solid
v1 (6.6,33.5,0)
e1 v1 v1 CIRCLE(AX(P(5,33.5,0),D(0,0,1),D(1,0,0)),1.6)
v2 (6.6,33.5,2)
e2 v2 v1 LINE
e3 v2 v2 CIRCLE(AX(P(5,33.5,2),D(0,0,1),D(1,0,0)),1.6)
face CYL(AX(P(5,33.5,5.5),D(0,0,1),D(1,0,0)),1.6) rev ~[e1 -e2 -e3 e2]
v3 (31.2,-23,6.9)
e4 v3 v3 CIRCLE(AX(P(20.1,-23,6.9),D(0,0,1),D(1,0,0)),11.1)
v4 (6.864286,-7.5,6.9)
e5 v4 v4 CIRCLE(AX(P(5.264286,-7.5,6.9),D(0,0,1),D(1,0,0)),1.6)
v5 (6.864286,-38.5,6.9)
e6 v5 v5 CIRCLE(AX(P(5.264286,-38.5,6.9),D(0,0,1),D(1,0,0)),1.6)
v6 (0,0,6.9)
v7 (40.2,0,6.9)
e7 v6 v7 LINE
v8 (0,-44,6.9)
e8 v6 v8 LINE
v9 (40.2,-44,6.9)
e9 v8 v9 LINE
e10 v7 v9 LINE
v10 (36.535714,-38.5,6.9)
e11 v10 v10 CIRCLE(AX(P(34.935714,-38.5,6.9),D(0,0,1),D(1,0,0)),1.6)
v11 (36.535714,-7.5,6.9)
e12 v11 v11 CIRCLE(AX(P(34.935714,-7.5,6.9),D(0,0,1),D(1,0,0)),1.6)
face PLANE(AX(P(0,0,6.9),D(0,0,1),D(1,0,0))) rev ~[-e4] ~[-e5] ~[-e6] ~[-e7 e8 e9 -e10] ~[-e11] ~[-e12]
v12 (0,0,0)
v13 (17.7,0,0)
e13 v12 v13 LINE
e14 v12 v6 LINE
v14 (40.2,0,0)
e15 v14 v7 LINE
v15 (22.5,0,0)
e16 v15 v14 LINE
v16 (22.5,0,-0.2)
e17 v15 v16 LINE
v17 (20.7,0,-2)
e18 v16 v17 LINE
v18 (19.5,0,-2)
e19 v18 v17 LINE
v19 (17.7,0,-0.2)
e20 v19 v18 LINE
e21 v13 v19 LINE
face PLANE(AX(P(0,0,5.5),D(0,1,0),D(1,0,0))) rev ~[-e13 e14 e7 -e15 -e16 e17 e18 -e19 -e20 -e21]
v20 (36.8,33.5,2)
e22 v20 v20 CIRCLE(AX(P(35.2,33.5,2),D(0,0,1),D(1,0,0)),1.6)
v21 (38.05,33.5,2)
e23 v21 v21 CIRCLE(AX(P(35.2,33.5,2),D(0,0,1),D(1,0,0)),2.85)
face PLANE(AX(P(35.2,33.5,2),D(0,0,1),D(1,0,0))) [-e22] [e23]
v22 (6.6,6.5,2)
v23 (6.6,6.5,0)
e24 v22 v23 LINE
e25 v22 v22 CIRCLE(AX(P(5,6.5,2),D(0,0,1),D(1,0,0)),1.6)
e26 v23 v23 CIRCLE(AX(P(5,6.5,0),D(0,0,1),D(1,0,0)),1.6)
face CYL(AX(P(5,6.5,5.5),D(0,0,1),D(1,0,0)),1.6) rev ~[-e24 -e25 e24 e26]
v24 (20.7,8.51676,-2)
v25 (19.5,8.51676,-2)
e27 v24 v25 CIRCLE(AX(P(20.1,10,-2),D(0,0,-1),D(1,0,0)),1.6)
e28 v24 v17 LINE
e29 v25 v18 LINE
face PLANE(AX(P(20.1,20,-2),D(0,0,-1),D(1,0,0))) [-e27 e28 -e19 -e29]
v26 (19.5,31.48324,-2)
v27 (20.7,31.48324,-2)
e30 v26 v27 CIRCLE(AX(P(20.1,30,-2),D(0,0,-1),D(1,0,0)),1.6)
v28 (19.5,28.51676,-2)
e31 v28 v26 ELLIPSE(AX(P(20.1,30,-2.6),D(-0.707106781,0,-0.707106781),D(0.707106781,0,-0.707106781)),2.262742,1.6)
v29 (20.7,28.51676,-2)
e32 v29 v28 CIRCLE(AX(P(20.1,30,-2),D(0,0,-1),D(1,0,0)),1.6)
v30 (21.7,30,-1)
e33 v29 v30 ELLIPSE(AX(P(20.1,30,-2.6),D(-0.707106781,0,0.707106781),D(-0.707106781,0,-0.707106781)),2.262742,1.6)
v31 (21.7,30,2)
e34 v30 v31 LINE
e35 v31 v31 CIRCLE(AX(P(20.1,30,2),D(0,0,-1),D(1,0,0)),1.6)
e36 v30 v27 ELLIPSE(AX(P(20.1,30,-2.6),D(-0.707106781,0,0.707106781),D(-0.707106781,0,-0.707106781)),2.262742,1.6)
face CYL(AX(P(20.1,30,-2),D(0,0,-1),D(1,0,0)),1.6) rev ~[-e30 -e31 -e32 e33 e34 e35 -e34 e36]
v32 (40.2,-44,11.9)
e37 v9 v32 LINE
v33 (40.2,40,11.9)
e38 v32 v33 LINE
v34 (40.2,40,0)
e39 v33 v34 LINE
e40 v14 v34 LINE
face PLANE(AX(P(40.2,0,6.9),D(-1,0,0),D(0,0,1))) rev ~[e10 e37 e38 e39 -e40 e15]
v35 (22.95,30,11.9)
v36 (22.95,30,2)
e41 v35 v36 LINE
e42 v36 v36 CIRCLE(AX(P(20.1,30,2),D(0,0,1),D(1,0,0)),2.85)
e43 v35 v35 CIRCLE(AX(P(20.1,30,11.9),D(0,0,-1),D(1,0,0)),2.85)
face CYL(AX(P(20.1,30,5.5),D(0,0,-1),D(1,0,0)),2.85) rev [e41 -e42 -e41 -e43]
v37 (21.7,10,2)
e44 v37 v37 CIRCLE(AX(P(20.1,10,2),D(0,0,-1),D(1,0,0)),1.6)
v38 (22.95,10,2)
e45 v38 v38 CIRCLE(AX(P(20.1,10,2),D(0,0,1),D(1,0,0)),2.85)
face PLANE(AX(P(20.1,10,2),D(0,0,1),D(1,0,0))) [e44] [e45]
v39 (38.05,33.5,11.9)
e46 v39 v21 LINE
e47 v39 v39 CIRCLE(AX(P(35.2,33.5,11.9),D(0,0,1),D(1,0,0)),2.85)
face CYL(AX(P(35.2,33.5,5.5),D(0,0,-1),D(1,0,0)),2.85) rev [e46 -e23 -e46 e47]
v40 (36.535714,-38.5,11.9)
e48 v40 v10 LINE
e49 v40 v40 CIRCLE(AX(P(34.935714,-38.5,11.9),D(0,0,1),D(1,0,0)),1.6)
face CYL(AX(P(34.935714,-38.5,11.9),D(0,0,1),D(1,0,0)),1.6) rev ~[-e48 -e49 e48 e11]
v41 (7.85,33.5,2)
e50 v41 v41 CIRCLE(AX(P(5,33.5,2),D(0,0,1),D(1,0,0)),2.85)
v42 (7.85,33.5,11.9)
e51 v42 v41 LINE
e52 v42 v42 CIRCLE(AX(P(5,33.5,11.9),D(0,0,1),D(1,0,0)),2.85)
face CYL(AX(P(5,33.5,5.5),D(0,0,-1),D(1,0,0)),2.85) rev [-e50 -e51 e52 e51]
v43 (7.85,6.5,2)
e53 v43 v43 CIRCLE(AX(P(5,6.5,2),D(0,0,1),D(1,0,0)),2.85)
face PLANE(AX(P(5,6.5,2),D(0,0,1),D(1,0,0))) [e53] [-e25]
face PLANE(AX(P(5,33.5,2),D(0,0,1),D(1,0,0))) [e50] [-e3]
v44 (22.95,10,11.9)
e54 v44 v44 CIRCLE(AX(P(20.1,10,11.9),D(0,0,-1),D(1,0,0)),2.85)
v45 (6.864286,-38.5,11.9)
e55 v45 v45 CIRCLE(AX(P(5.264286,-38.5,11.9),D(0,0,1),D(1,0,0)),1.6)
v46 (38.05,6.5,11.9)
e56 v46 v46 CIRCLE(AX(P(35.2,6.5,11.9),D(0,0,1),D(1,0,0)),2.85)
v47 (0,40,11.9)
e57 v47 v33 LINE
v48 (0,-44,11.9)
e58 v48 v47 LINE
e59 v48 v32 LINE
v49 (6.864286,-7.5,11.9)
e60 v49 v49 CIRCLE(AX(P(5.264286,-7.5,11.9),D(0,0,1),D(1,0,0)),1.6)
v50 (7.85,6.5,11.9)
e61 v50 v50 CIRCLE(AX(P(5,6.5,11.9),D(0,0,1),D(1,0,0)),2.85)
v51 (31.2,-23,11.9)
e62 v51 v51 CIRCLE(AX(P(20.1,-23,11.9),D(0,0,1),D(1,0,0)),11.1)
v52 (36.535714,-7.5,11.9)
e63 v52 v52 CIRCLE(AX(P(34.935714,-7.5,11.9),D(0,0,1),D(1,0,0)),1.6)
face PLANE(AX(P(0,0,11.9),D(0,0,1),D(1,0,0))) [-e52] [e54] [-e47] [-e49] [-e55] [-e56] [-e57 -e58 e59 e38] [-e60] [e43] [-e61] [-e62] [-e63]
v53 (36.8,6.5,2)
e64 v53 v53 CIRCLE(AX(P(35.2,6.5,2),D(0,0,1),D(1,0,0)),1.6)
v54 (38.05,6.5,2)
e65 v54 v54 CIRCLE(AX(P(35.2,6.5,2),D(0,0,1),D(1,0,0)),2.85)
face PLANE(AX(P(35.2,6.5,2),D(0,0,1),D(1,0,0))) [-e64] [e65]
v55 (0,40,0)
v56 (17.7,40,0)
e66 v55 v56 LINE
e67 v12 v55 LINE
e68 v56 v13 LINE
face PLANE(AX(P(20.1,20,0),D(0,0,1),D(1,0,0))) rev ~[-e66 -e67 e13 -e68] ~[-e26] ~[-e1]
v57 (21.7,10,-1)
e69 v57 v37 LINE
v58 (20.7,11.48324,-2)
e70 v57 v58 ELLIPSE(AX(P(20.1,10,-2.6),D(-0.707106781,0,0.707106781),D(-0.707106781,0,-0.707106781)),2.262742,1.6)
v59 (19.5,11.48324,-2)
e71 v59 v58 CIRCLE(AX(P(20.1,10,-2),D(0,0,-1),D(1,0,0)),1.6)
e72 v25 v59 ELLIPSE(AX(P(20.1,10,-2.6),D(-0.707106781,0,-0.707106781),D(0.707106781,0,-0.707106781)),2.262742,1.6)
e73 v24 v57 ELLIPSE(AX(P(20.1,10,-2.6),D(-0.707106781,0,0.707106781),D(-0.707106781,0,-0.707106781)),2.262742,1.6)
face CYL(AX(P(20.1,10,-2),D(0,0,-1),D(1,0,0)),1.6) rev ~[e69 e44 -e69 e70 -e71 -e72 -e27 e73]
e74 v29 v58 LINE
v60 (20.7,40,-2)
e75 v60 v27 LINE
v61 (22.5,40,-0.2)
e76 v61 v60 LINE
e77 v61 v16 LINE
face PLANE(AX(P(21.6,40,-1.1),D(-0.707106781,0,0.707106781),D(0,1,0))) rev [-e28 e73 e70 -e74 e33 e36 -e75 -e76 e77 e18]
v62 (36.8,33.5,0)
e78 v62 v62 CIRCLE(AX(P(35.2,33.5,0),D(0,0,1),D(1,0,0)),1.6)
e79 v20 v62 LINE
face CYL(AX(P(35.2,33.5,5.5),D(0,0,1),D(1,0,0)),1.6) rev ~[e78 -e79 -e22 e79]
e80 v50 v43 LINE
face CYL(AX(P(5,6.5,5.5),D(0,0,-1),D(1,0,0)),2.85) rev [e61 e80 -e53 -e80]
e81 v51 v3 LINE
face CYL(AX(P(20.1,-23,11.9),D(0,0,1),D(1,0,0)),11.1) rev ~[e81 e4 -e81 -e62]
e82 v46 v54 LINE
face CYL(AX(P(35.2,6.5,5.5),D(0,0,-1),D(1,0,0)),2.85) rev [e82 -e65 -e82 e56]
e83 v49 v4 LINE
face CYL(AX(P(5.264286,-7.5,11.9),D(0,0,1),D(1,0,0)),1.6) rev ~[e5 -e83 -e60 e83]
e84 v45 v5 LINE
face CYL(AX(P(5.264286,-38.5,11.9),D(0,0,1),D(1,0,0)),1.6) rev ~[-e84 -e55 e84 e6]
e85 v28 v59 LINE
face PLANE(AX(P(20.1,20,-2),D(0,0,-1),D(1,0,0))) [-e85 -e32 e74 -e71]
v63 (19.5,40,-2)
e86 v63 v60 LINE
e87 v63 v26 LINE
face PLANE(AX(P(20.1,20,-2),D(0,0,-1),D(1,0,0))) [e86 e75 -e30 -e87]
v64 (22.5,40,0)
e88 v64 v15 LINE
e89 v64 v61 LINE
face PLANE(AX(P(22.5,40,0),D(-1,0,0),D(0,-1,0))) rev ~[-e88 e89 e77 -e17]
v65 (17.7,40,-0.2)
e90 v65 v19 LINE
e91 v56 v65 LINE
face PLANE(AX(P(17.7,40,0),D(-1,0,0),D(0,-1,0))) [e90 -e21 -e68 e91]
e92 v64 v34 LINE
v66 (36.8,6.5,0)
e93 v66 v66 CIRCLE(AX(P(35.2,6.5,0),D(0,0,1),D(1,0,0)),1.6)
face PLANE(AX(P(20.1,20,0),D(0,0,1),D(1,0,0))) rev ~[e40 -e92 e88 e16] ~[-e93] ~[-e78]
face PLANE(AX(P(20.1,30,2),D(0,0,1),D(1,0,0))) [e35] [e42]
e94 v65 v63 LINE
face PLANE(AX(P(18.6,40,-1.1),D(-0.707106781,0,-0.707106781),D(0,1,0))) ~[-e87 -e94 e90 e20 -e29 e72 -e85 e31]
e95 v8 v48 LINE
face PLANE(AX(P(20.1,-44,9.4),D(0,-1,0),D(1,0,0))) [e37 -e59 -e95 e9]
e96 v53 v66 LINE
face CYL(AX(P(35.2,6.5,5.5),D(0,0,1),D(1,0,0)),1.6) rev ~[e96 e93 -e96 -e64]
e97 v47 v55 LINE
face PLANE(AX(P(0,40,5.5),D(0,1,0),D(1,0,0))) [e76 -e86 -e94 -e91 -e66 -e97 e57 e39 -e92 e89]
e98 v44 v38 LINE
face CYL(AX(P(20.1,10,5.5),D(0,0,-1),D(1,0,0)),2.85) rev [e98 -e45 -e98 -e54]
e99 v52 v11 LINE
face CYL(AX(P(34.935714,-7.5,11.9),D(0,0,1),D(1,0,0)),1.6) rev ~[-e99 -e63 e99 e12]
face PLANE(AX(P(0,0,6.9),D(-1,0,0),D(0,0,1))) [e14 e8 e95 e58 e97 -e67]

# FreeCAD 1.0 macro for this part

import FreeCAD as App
import Part
import Sketcher

V = App.Vector


def edges_at(feature, points):
    """Names of the edges that pass closest to the given points."""
    edges = feature.Shape.Edges
    near = lambda p: min(range(len(edges)), key=lambda i: edges[i].distToShape(Part.Vertex(*p))[0])
    return sorted({f"Edge{near(p) + 1}" for p in points})


def add_polygon(sketch, points):
    """Adds a closed chain of lines whose ends are joined by coincident constraints."""
    first, n = sketch.GeometryCount, len(points)
    for a, b in zip(points, points[1:] + points[:1]):
        sketch.addGeometry(Part.LineSegment(App.Vector(*a, 0), App.Vector(*b, 0)), False)
    for i in range(n):
        sketch.addConstraint(Sketcher.Constraint("Coincident", first + i, 2, first + (i + 1) % n, 1))

doc = App.newDocument("Part")
params = doc.addObject("Spreadsheet::Sheet", "Params")
for row, (alias, value) in enumerate([
    ("sketch1_height", "40 mm"),
    ("sketch1_width", "40.2 mm"),
    ("pad1_length", "5.5 mm"),
    ("sketch2_diameter", "5.7 mm"),
    ("pocket1_length", "3.5 mm"),
    ("sketch3_diameter", "3.2 mm"),
    ("pocket2_length", "25 mm"),
    ("sketch4_height", "40 mm"),
    ("sketch4_width", "4.8 mm"),
    ("pad2_length", "2 mm"),
    ("chamfer_size", "1.8 mm"),
    ("sketch5_diameter", "3.2 mm"),
    ("pocket3_length", "25 mm"),
    ("sketch6_diameter", "5.7 mm"),
    ("pocket4_length", "3.5 mm"),
    ("sketch7_diameter", "5.7 mm"),
    ("sketch7_height", "40 mm"),
    ("sketch7_width", "40.2 mm"),
    ("pad3_length", "6.4 mm"),
    ("sketch8_diameter", "5.7 mm"),
    ("pocket5_length", "25 mm"),
    ("sketch9_height", "5 mm"),
    ("sketch9_width", "40.2 mm"),
    ("pad4_length", "44 mm"),
    ("sketch10_diameter", "22.2 mm"),
    ("sketch10_diameter2", "3.2 mm"),
    ("pocket6_length", "25 mm"),
], start=1):
    params.set(f"A{row}", alias)
    params.set(f"B{row}", "=" + value)
    params.setAlias(f"B{row}", alias)

body = doc.addObject("PartDesign::Body", "Body")

sketch1 = body.newObject("Sketcher::SketchObject", "Sketch")
sketch1.AttachmentSupport = (doc.getObject("XY_Plane"), [""])
sketch1.MapMode = "FlatFace"
add_polygon(sketch1, [(0, 40), (0, 0), (40, 0), (40, 40)])
sketch1.addConstraint([
    Sketcher.Constraint("Vertical", 0),
    Sketcher.Constraint("Horizontal", 1),
    Sketcher.Constraint("Vertical", 2),
    Sketcher.Constraint("Horizontal", 3),
    Sketcher.Constraint("Coincident", 0, 2, -1, 1),
    Sketcher.Constraint("DistanceY", 0, 2, 0, 1, 40.0),
    Sketcher.Constraint("DistanceX", 1, 1, 1, 2, 40.2),
])
sketch1.setExpression("Constraints[9]", "Params.sketch1_height")
sketch1.setExpression("Constraints[10]", "Params.sketch1_width")
pad1 = body.newObject("PartDesign::Pad", "Pad")
pad1.Profile = sketch1
pad1.setExpression("Length", "Params.pad1_length")

sketch2 = body.newObject("Sketcher::SketchObject", "Sketch001")
sketch2.AttachmentSupport = (doc.getObject("XY_Plane"), [""])
sketch2.MapMode = "FlatFace"
sketch2.AttachmentOffset = App.Placement(V(0, 0, 5.5), App.Rotation())
sketch2.addGeometry([
    Part.Circle(V(35.2, 6.5, 0), V(0, 0, 1), 2.9),
    Part.Circle(V(35.2, 33.5, 0), V(0, 0, 1), 2.9),
    Part.Circle(V(5, 33.5, 0), V(0, 0, 1), 2.9),
    Part.Circle(V(5, 6.5, 0), V(0, 0, 1), 2.9),
], False)
sketch2.addConstraint([
    Sketcher.Constraint("Equal", 0, 1),
    Sketcher.Constraint("Equal", 1, 2),
    Sketcher.Constraint("Equal", 2, 3),
    Sketcher.Constraint("Horizontal", 1, 3, 2, 3),
    Sketcher.Constraint("Horizontal", 0, 3, 3, 3),
    Sketcher.Constraint("Vertical", 0, 3, 1, 3),
    Sketcher.Constraint("Vertical", 2, 3, 3, 3),
    Sketcher.Constraint("Diameter", 0, 5.7),
    Sketcher.Constraint("DistanceX", -1, 1, 2, 3, 5.0),
    Sketcher.Constraint("DistanceY", 0, 3, 1, 3, 27.0),
    Sketcher.Constraint("DistanceX", -1, 1, 0, 3, 35.2),
    Sketcher.Constraint("DistanceY", -1, 1, 0, 3, 6.5),
])
sketch2.setExpression("Constraints[7]", "Params.sketch2_diameter")
pocket1 = body.newObject("PartDesign::Pocket", "Pocket")
pocket1.Profile = sketch2
pocket1.setExpression("Length", "Params.pocket1_length")

sketch3 = body.newObject("Sketcher::SketchObject", "Sketch002")
sketch3.AttachmentSupport = (doc.getObject("XY_Plane"), [""])
sketch3.MapMode = "FlatFace"
sketch3.AttachmentOffset = App.Placement(V(0, 0, 5.5), App.Rotation())
sketch3.addGeometry([
    Part.Circle(V(35.2, 33.5, 0), V(0, 0, 1), 1.6),
    Part.Circle(V(35.2, 6.5, 0), V(0, 0, 1), 1.6),
    Part.Circle(V(5, 33.5, 0), V(0, 0, 1), 1.6),
    Part.Circle(V(5, 6.5, 0), V(0, 0, 1), 1.6),
], False)
sketch3.addConstraint([
    Sketcher.Constraint("Equal", 0, 1),
    Sketcher.Constraint("Equal", 1, 2),
    Sketcher.Constraint("Equal", 2, 3),
    Sketcher.Constraint("Horizontal", 0, 3, 2, 3),
    Sketcher.Constraint("Horizontal", 1, 3, 3, 3),
    Sketcher.Constraint("Vertical", 0, 3, 1, 3),
    Sketcher.Constraint("Vertical", 2, 3, 3, 3),
    Sketcher.Constraint("Diameter", 0, 3.2),
    Sketcher.Constraint("DistanceX", -1, 1, 2, 3, 5.0),
    Sketcher.Constraint("DistanceY", 1, 3, 0, 3, 27.0),
    Sketcher.Constraint("DistanceX", -1, 1, 0, 3, 35.2),
    Sketcher.Constraint("DistanceY", -1, 1, 0, 3, 33.5),
])
sketch3.setExpression("Constraints[7]", "Params.sketch3_diameter")
pocket2 = body.newObject("PartDesign::Pocket", "Pocket001")
pocket2.Profile = sketch3
pocket2.setExpression("Length", "Params.pocket2_length")

sketch4 = body.newObject("Sketcher::SketchObject", "Sketch003")
sketch4.AttachmentSupport = (doc.getObject("XY_Plane"), [""])
sketch4.MapMode = "FlatFace"
add_polygon(sketch4, [(17.7, 0), (17.7, 40), (22.5, 40), (22.5, 0)])
sketch4.addConstraint([
    Sketcher.Constraint("Vertical", 0),
    Sketcher.Constraint("Horizontal", 1),
    Sketcher.Constraint("Vertical", 2),
    Sketcher.Constraint("Horizontal", 3),
    Sketcher.Constraint("PointOnObject", 2, 2, -1),
    Sketcher.Constraint("DistanceY", 0, 1, 0, 2, 40.0),
    Sketcher.Constraint("DistanceX", 1, 1, 1, 2, 4.8),
    Sketcher.Constraint("DistanceX", -1, 1, 0, 2, 17.7),
])
sketch4.setExpression("Constraints[9]", "Params.sketch4_height")
sketch4.setExpression("Constraints[10]", "Params.sketch4_width")
pad2 = body.newObject("PartDesign::Pad", "Pad001")
pad2.Profile = sketch4
pad2.setExpression("Length", "Params.pad2_length")
pad2.Reversed = True
doc.recompute()

chamfer = body.newObject("PartDesign::Chamfer", "Chamfer")
chamfer.Base = (pad2, edges_at(pad2, [(17.7, 20, -2), (22.5, 20, -2)]))
chamfer.setExpression("Size", "Params.chamfer_size")

sketch5 = body.newObject("Sketcher::SketchObject", "Sketch004")
sketch5.AttachmentSupport = (doc.getObject("XY_Plane"), [""])
sketch5.MapMode = "FlatFace"
sketch5.AttachmentOffset = App.Placement(V(0, 0, -2), App.Rotation())
sketch5.addGeometry([
    Part.Circle(V(20.1, 30, 0), V(0, 0, 1), 1.6),
    Part.Circle(V(20.1, 10, 0), V(0, 0, 1), 1.6),
], False)
sketch5.addConstraint([
    Sketcher.Constraint("Equal", 0, 1),
    Sketcher.Constraint("Vertical", 0, 3, 1, 3),
    Sketcher.Constraint("Diameter", 0, 3.2),
    Sketcher.Constraint("DistanceY", -1, 1, 0, 3, 30.0),
    Sketcher.Constraint("DistanceY", -1, 1, 1, 3, 10.0),
    Sketcher.Constraint("DistanceX", -1, 1, 0, 3, 20.1),
])
sketch5.setExpression("Constraints[2]", "Params.sketch5_diameter")
pocket3 = body.newObject("PartDesign::Pocket", "Pocket002")
pocket3.Profile = sketch5
pocket3.setExpression("Length", "Params.pocket3_length")
pocket3.Reversed = True

sketch6 = body.newObject("Sketcher::SketchObject", "Sketch005")
sketch6.AttachmentSupport = (doc.getObject("XY_Plane"), [""])
sketch6.MapMode = "FlatFace"
sketch6.AttachmentOffset = App.Placement(V(0, 0, 5.5), App.Rotation())
sketch6.addGeometry([
    Part.Circle(V(20.1, 30, 0), V(0, 0, 1), 2.9),
    Part.Circle(V(20.1, 10, 0), V(0, 0, 1), 2.9),
], False)
sketch6.addConstraint([
    Sketcher.Constraint("Equal", 0, 1),
    Sketcher.Constraint("Vertical", 0, 3, 1, 3),
    Sketcher.Constraint("Diameter", 0, 5.7),
    Sketcher.Constraint("DistanceY", -1, 1, 0, 3, 30.0),
    Sketcher.Constraint("DistanceY", -1, 1, 1, 3, 10.0),
    Sketcher.Constraint("DistanceX", -1, 1, 0, 3, 20.1),
])
sketch6.setExpression("Constraints[2]", "Params.sketch6_diameter")
pocket4 = body.newObject("PartDesign::Pocket", "Pocket003")
pocket4.Profile = sketch6
pocket4.setExpression("Length", "Params.pocket4_length")

sketch7 = body.newObject("Sketcher::SketchObject", "Sketch006")
sketch7.AttachmentSupport = (doc.getObject("XY_Plane"), [""])
sketch7.MapMode = "FlatFace"
sketch7.AttachmentOffset = App.Placement(V(0, 0, 5.5), App.Rotation())
add_polygon(sketch7, [(0, 40), (0, 0), (40.2, 0), (40.2, 40)])
sketch7.addGeometry(Part.Circle(V(5, 6.5, 0), V(0, 0, 1), 2.9), False)
sketch7.addGeometry(Part.Circle(V(35.2, 6.5, 0), V(0, 0, 1), 2.9), False)
sketch7.addGeometry(Part.Circle(V(5, 33.5, 0), V(0, 0, 1), 2.9), False)
sketch7.addGeometry(Part.Circle(V(35.2, 33.5, 0), V(0, 0, 1), 2.9), False)
sketch7.addConstraint([
    Sketcher.Constraint("Vertical", 0),
    Sketcher.Constraint("Horizontal", 1),
    Sketcher.Constraint("Vertical", 2),
    Sketcher.Constraint("Horizontal", 3),
    Sketcher.Constraint("Coincident", 0, 2, -1, 1),
    Sketcher.Constraint("Equal", 4, 5),
    Sketcher.Constraint("Equal", 5, 6),
    Sketcher.Constraint("Equal", 6, 7),
    Sketcher.Constraint("Horizontal", 4, 3, 5, 3),
    Sketcher.Constraint("Horizontal", 6, 3, 7, 3),
    Sketcher.Constraint("Vertical", 4, 3, 6, 3),
    Sketcher.Constraint("Vertical", 5, 3, 7, 3),
    Sketcher.Constraint("Diameter", 4, 5.7),
    Sketcher.Constraint("DistanceY", 0, 2, 0, 1, 40.0),
    Sketcher.Constraint("DistanceX", 1, 1, 1, 2, 40.2),
    Sketcher.Constraint("DistanceX", -1, 1, 4, 3, 5.0),
    Sketcher.Constraint("DistanceY", 4, 3, 6, 3, 27.0),
    Sketcher.Constraint("DistanceX", 5, 3, 1, 2, 5.0),
    Sketcher.Constraint("DistanceY", -1, 1, 4, 3, 6.5),
])
sketch7.setExpression("Constraints[16]", "Params.sketch7_diameter")
sketch7.setExpression("Constraints[17]", "Params.sketch7_height")
sketch7.setExpression("Constraints[18]", "Params.sketch7_width")
pad3 = body.newObject("PartDesign::Pad", "Pad002")
pad3.Profile = sketch7
pad3.setExpression("Length", "Params.pad3_length")

sketch8 = body.newObject("Sketcher::SketchObject", "Sketch007")
sketch8.AttachmentSupport = (doc.getObject("XY_Plane"), [""])
sketch8.MapMode = "FlatFace"
sketch8.AttachmentOffset = App.Placement(V(0, 0, 5.5), App.Rotation())
sketch8.addGeometry([
    Part.Circle(V(20.1, 30, 0), V(0, 0, 1), 2.9),
    Part.Circle(V(20.1, 10, 0), V(0, 0, 1), 2.9),
], False)
sketch8.addConstraint([
    Sketcher.Constraint("Equal", 0, 1),
    Sketcher.Constraint("Vertical", 0, 3, 1, 3),
    Sketcher.Constraint("Diameter", 0, 5.7),
    Sketcher.Constraint("DistanceY", -1, 1, 0, 3, 30.0),
    Sketcher.Constraint("DistanceY", -1, 1, 1, 3, 10.0),
    Sketcher.Constraint("DistanceX", -1, 1, 0, 3, 20.1),
])
sketch8.setExpression("Constraints[2]", "Params.sketch8_diameter")
pocket5 = body.newObject("PartDesign::Pocket", "Pocket004")
pocket5.Profile = sketch8
pocket5.setExpression("Length", "Params.pocket5_length")
pocket5.Reversed = True

sketch9 = body.newObject("Sketcher::SketchObject", "Sketch008")
sketch9.AttachmentSupport = (doc.getObject("XZ_Plane"), [""])
sketch9.MapMode = "FlatFace"
add_polygon(sketch9, [(0, 12), (0, 7), (40, 7), (40, 12)])
sketch9.addConstraint([
    Sketcher.Constraint("Vertical", 0),
    Sketcher.Constraint("Horizontal", 1),
    Sketcher.Constraint("Vertical", 2),
    Sketcher.Constraint("Horizontal", 3),
    Sketcher.Constraint("PointOnObject", 0, 2, -2),
    Sketcher.Constraint("DistanceY", 0, 2, 0, 1, 5.0),
    Sketcher.Constraint("DistanceX", 1, 1, 1, 2, 40.2),
    Sketcher.Constraint("DistanceY", -1, 1, 0, 2, 6.9),
])
sketch9.setExpression("Constraints[9]", "Params.sketch9_height")
sketch9.setExpression("Constraints[10]", "Params.sketch9_width")
pad4 = body.newObject("PartDesign::Pad", "Pad003")
pad4.Profile = sketch9
pad4.setExpression("Length", "Params.pad4_length")

sketch10 = body.newObject("Sketcher::SketchObject", "Sketch009")
sketch10.AttachmentSupport = (doc.getObject("XY_Plane"), [""])
sketch10.MapMode = "FlatFace"
sketch10.AttachmentOffset = App.Placement(V(0, 0, 11.9), App.Rotation())
sketch10.addGeometry([
    Part.Circle(V(20.1, -23, 0), V(0, 0, 1), 11.1),
    Part.Circle(V(5.3, -38.5, 0), V(0, 0, 1), 1.6),
    Part.Circle(V(34.9, -38.5, 0), V(0, 0, 1), 1.6),
    Part.Circle(V(5.3, -7.5, 0), V(0, 0, 1), 1.6),
    Part.Circle(V(34.9, -7.5, 0), V(0, 0, 1), 1.6),
], False)
sketch10.addConstraint([
    Sketcher.Constraint("Equal", 1, 2),
    Sketcher.Constraint("Equal", 2, 3),
    Sketcher.Constraint("Equal", 3, 4),
    Sketcher.Constraint("Horizontal", 1, 3, 2, 3),
    Sketcher.Constraint("Horizontal", 3, 3, 4, 3),
    Sketcher.Constraint("Vertical", 1, 3, 3, 3),
    Sketcher.Constraint("Vertical", 2, 3, 4, 3),
    Sketcher.Constraint("Diameter", 0, 22.2),
    Sketcher.Constraint("Diameter", 1, 3.2),
    Sketcher.Constraint("DistanceY", 0, 3, -1, 1, 23.0),
    Sketcher.Constraint("DistanceY", 1, 3, 3, 3, 31.0),
    Sketcher.Constraint("DistanceX", -1, 1, 0, 3, 20.1),
    Sketcher.Constraint("DistanceY", 1, 3, -1, 1, 38.5),
    Sketcher.Constraint("DistanceX", -1, 1, 1, 3, 5.264286),
    Sketcher.Constraint("DistanceX", -1, 1, 2, 3, 34.935714),
])
sketch10.setExpression("Constraints[7]", "Params.sketch10_diameter")
sketch10.setExpression("Constraints[8]", "Params.sketch10_diameter2")
pocket6 = body.newObject("PartDesign::Pocket", "Pocket005")
pocket6.Profile = sketch10
pocket6.setExpression("Length", "Params.pocket6_length")

doc.recompute()
